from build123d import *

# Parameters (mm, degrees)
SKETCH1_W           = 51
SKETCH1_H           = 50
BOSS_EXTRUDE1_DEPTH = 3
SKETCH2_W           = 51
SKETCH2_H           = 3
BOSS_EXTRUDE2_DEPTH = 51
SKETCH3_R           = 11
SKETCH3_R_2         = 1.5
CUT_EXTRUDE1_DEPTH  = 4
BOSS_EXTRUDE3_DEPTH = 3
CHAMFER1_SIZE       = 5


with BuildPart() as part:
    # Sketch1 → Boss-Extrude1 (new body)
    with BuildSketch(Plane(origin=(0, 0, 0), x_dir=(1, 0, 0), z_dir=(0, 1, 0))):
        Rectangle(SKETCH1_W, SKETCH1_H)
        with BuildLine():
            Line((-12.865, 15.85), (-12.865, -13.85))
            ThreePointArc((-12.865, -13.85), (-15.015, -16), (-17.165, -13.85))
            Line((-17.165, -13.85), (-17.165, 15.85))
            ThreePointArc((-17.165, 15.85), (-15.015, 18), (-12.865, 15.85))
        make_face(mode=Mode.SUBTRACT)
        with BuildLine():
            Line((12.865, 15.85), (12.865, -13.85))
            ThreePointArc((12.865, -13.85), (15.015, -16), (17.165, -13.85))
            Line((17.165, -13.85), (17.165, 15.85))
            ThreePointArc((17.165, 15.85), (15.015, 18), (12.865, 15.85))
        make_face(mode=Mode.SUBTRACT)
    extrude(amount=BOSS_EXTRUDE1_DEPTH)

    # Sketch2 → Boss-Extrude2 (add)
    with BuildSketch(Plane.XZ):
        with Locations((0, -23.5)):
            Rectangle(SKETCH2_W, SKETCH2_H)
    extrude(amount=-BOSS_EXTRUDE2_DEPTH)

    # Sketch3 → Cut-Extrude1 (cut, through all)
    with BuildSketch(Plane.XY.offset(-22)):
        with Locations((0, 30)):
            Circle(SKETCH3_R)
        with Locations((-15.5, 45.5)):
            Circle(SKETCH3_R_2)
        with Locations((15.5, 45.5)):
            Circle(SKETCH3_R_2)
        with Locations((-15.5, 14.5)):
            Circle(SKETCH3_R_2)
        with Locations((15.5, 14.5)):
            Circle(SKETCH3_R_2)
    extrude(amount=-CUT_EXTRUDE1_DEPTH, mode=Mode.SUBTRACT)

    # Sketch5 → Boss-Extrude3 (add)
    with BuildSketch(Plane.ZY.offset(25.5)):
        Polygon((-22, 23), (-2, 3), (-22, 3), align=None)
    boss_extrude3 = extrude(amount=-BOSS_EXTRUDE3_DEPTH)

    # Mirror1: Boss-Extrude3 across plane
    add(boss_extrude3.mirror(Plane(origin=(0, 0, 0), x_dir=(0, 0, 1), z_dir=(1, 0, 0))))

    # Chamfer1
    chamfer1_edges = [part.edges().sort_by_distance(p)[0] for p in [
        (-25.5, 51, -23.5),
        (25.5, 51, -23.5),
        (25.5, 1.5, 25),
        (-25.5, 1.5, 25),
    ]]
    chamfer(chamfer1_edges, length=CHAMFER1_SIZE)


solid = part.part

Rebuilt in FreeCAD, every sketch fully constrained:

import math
import FreeCAD as App
import Part
import Sketcher
from FreeCAD import Vector


def edges_at(feature, points):
    """Names of the edges that pass closest to the given points."""
    edges = feature.Shape.Edges
    near = lambda p: min(range(len(edges)), key=lambda i: edges[i].distToShape(Part.Vertex(*p))[0])
    return sorted({f"Edge{near(p) + 1}" for p in points})

doc = App.newDocument("Part")
body = doc.addObject("PartDesign::Body", "Body")

sketch1 = body.newObject("Sketcher::SketchObject", "Sketch")
sketch1.AttachmentSupport = (doc.getObject("XZ_Plane"), [""])
sketch1.MapMode = "FlatFace"
sketch1.addGeometry(Part.LineSegment(Vector(-25.5, -25, 0), Vector(-25.5, 25, 0)), False)
sketch1.addGeometry(Part.LineSegment(Vector(-25.5, 25, 0), Vector(25.5, 25, 0)), False)
sketch1.addGeometry(Part.LineSegment(Vector(25.5, 25, 0), Vector(25.5, -25, 0)), False)
sketch1.addGeometry(Part.LineSegment(Vector(25.5, -25, 0), Vector(-25.5, -25, 0)), False)
sketch1.addGeometry(Part.ArcOfCircle(Part.Circle(Vector(-15, -15.8, 0), Vector(0, 0, 1), 2.1), math.radians(180), math.radians(360)), False)
sketch1.addGeometry(Part.LineSegment(Vector(-12.9, -15.8, 0), Vector(-12.9, 13.8, 0)), False)
sketch1.addGeometry(Part.ArcOfCircle(Part.Circle(Vector(-15, 13.8, 0), Vector(0, 0, 1), 2.1), math.radians(0), math.radians(180)), False)
sketch1.addGeometry(Part.LineSegment(Vector(-17.2, 13.8, 0), Vector(-17.2, -15.8, 0)), False)
sketch1.addGeometry(Part.LineSegment(Vector(12.9, 13.8, 0), Vector(12.9, -15.8, 0)), False)
sketch1.addGeometry(Part.ArcOfCircle(Part.Circle(Vector(15, -15.8, 0), Vector(0, 0, 1), 2.1), math.radians(180), math.radians(360)), False)
sketch1.addGeometry(Part.LineSegment(Vector(17.2, -15.8, 0), Vector(17.2, 13.8, 0)), False)
sketch1.addGeometry(Part.ArcOfCircle(Part.Circle(Vector(15, 13.8, 0), Vector(0, 0, 1), 2.1), math.radians(0), math.radians(180)), False)
sketch1.addConstraint(Sketcher.Constraint("Coincident", 0, 2, 1, 1))
sketch1.addConstraint(Sketcher.Constraint("Coincident", 1, 2, 2, 1))
sketch1.addConstraint(Sketcher.Constraint("Coincident", 2, 2, 3, 1))
sketch1.addConstraint(Sketcher.Constraint("Coincident", 3, 2, 0, 1))
sketch1.addConstraint(Sketcher.Constraint("Tangent", 4, 2, 5, 1))
sketch1.addConstraint(Sketcher.Constraint("Tangent", 5, 2, 6, 1))
sketch1.addConstraint(Sketcher.Constraint("Tangent", 6, 2, 7, 1))
sketch1.addConstraint(Sketcher.Constraint("Tangent", 7, 2, 4, 1))
sketch1.addConstraint(Sketcher.Constraint("Tangent", 8, 2, 9, 1))
sketch1.addConstraint(Sketcher.Constraint("Tangent", 9, 2, 10, 1))
sketch1.addConstraint(Sketcher.Constraint("Tangent", 10, 2, 11, 1))
sketch1.addConstraint(Sketcher.Constraint("Tangent", 11, 2, 8, 1))
sketch1.addConstraint(Sketcher.Constraint("Vertical", 0))
sketch1.addConstraint(Sketcher.Constraint("Horizontal", 1))
sketch1.addConstraint(Sketcher.Constraint("Vertical", 2))
sketch1.addConstraint(Sketcher.Constraint("Horizontal", 3))
sketch1.addConstraint(Sketcher.Constraint("Vertical", 5))
sketch1.addConstraint(Sketcher.Constraint("Vertical", 7))
sketch1.addConstraint(Sketcher.Constraint("Vertical", 8))
sketch1.addConstraint(Sketcher.Constraint("Vertical", 10))
sketch1.addConstraint(Sketcher.Constraint("Equal", 6, 9))
sketch1.addConstraint(Sketcher.Constraint("Symmetric", 0, 2, 2, 2, -1, 1))
sketch1.addConstraint(Sketcher.Constraint("Symmetric", 4, 3, 9, 3, -2))
sketch1.addConstraint(Sketcher.Constraint("Horizontal", 6, 3, 11, 3))
sketch1.addConstraint(Sketcher.Constraint("DistanceX", 1, 1, 1, 2, 51.0))
sketch1.addConstraint(Sketcher.Constraint("DistanceY", 0, 1, 0, 2, 50.0))
sketch1.addConstraint(Sketcher.Constraint("Radius", 4, 2.15))
sketch1.addConstraint(Sketcher.Constraint("DistanceY", 5, 1, 5, 2, 29.7))
sketch1.addConstraint(Sketcher.Constraint("DistanceY", 4, 3, -1, 1, 15.85))
sketch1.addConstraint(Sketcher.Constraint("DistanceX", 4, 3, 9, 3, 30.03))
pad1 = body.newObject("PartDesign::Pad", "Pad")
pad1.Profile = sketch1
pad1.Length = 3
pad1.Reversed = True

sketch2 = body.newObject("Sketcher::SketchObject", "Sketch001")
sketch2.AttachmentSupport = (doc.getObject("XZ_Plane"), [""])
sketch2.MapMode = "FlatFace"
sketch2.addGeometry(Part.LineSegment(Vector(-25.5, -22, 0), Vector(-25.5, -25, 0)), False)
sketch2.addGeometry(Part.LineSegment(Vector(-25.5, -25, 0), Vector(25.5, -25, 0)), False)
sketch2.addGeometry(Part.LineSegment(Vector(25.5, -25, 0), Vector(25.5, -22, 0)), False)
sketch2.addGeometry(Part.LineSegment(Vector(25.5, -22, 0), Vector(-25.5, -22, 0)), False)
sketch2.addConstraint(Sketcher.Constraint("Coincident", 0, 2, 1, 1))
sketch2.addConstraint(Sketcher.Constraint("Coincident", 1, 2, 2, 1))
sketch2.addConstraint(Sketcher.Constraint("Coincident", 2, 2, 3, 1))
sketch2.addConstraint(Sketcher.Constraint("Coincident", 3, 2, 0, 1))
sketch2.addConstraint(Sketcher.Constraint("Vertical", 0))
sketch2.addConstraint(Sketcher.Constraint("Horizontal", 1))
sketch2.addConstraint(Sketcher.Constraint("Vertical", 2))
sketch2.addConstraint(Sketcher.Constraint("Horizontal", 3))
sketch2.addConstraint(Sketcher.Constraint("DistanceX", 1, 1, 1, 2, 51.0))
sketch2.addConstraint(Sketcher.Constraint("DistanceY", 0, 2, 0, 1, 3.0))
sketch2.addConstraint(Sketcher.Constraint("DistanceY", 0, 2, -1, 1, 25.0))
sketch2.addConstraint(Sketcher.Constraint("DistanceX", 0, 2, -1, 1, 25.5))
pad2 = body.newObject("PartDesign::Pad", "Pad001")
pad2.Profile = sketch2
pad2.Length = 51
pad2.Reversed = True

sketch3 = body.newObject("Sketcher::SketchObject", "Sketch002")
sketch3.AttachmentSupport = (doc.getObject("XY_Plane"), [""])
sketch3.MapMode = "FlatFace"
sketch3.AttachmentOffset = App.Placement(Vector(0, 0, -22), App.Rotation())
sketch3.addGeometry(Part.Circle(Vector(0, 30, 0), Vector(0, 0, 1), 11), False)
sketch3.addGeometry(Part.Circle(Vector(-15.5, 45.5, 0), Vector(0, 0, 1), 1.5), False)
sketch3.addGeometry(Part.Circle(Vector(15.5, 45.5, 0), Vector(0, 0, 1), 1.5), False)
sketch3.addGeometry(Part.Circle(Vector(-15.5, 14.5, 0), Vector(0, 0, 1), 1.5), False)
sketch3.addGeometry(Part.Circle(Vector(15.5, 14.5, 0), Vector(0, 0, 1), 1.5), False)
sketch3.addConstraint(Sketcher.Constraint("Equal", 1, 2))
sketch3.addConstraint(Sketcher.Constraint("Equal", 2, 3))
sketch3.addConstraint(Sketcher.Constraint("Equal", 3, 4))
sketch3.addConstraint(Sketcher.Constraint("Symmetric", 1, 3, 2, 3, -2))
sketch3.addConstraint(Sketcher.Constraint("Symmetric", 3, 3, 4, 3, -2))
sketch3.addConstraint(Sketcher.Constraint("PointOnObject", 0, 3, -2))
sketch3.addConstraint(Sketcher.Constraint("Vertical", 1, 3, 3, 3))
sketch3.addConstraint(Sketcher.Constraint("Diameter", 0, 22.0))
sketch3.addConstraint(Sketcher.Constraint("Diameter", 1, 3.0))
sketch3.addConstraint(Sketcher.Constraint("DistanceY", -1, 1, 0, 3, 30.0))
sketch3.addConstraint(Sketcher.Constraint("DistanceX", 1, 3, 2, 3, 31.0))
sketch3.addConstraint(Sketcher.Constraint("DistanceY", 3, 3, 1, 3, 31.0))
sketch3.addConstraint(Sketcher.Constraint("DistanceY", -1, 1, 1, 3, 45.5))
pocket1 = body.newObject("PartDesign::Pocket", "Pocket")
pocket1.Profile = sketch3
pocket1.Type = "ThroughAll"

sketch4 = body.newObject("Sketcher::SketchObject", "Sketch003")
sketch4.AttachmentSupport = (doc.getObject("YZ_Plane"), [""])
sketch4.MapMode = "FlatFace"
sketch4.AttachmentOffset = App.Placement(Vector(0, 0, -25.5), App.Rotation())
sketch4.addGeometry(Part.LineSegment(Vector(3, -2, 0), Vector(23, -22, 0)), False)
sketch4.addGeometry(Part.LineSegment(Vector(23, -22, 0), Vector(3, -22, 0)), False)
sketch4.addGeometry(Part.LineSegment(Vector(3, -22, 0), Vector(3, -2, 0)), False)
sketch4.addConstraint(Sketcher.Constraint("Coincident", 0, 2, 1, 1))
sketch4.addConstraint(Sketcher.Constraint("Coincident", 1, 2, 2, 1))
sketch4.addConstraint(Sketcher.Constraint("Coincident", 2, 2, 0, 1))
sketch4.addConstraint(Sketcher.Constraint("Horizontal", 1))
sketch4.addConstraint(Sketcher.Constraint("Vertical", 2))
sketch4.addConstraint(Sketcher.Constraint("Equal", 1, 2))
sketch4.addConstraint(Sketcher.Constraint("DistanceX", 1, 2, 1, 1, 20.0))
sketch4.addConstraint(Sketcher.Constraint("DistanceX", -1, 1, 0, 2, 23.0))
sketch4.addConstraint(Sketcher.Constraint("DistanceY", 0, 2, -1, 1, 22.0))
pad3 = body.newObject("PartDesign::Pad", "Pad002")
pad3.Profile = sketch4
pad3.Length = 3
doc.recompute()

mirrored = body.newObject("PartDesign::Mirrored", "Mirrored")
mirrored.Originals = [pad3]
mirrored.MirrorPlane = (doc.getObject("YZ_Plane"), [""])
body.Tip = mirrored
doc.recompute()

chamfer = body.newObject("PartDesign::Chamfer", "Chamfer")
chamfer.Base = (mirrored, edges_at(mirrored, [
    (-25.5, 51, -23.5),
    (25.5, 51, -23.5),
    (25.5, 1.5, 25),
    (-25.5, 1.5, 25),
]))
chamfer.Size = 5

doc.recompute()
